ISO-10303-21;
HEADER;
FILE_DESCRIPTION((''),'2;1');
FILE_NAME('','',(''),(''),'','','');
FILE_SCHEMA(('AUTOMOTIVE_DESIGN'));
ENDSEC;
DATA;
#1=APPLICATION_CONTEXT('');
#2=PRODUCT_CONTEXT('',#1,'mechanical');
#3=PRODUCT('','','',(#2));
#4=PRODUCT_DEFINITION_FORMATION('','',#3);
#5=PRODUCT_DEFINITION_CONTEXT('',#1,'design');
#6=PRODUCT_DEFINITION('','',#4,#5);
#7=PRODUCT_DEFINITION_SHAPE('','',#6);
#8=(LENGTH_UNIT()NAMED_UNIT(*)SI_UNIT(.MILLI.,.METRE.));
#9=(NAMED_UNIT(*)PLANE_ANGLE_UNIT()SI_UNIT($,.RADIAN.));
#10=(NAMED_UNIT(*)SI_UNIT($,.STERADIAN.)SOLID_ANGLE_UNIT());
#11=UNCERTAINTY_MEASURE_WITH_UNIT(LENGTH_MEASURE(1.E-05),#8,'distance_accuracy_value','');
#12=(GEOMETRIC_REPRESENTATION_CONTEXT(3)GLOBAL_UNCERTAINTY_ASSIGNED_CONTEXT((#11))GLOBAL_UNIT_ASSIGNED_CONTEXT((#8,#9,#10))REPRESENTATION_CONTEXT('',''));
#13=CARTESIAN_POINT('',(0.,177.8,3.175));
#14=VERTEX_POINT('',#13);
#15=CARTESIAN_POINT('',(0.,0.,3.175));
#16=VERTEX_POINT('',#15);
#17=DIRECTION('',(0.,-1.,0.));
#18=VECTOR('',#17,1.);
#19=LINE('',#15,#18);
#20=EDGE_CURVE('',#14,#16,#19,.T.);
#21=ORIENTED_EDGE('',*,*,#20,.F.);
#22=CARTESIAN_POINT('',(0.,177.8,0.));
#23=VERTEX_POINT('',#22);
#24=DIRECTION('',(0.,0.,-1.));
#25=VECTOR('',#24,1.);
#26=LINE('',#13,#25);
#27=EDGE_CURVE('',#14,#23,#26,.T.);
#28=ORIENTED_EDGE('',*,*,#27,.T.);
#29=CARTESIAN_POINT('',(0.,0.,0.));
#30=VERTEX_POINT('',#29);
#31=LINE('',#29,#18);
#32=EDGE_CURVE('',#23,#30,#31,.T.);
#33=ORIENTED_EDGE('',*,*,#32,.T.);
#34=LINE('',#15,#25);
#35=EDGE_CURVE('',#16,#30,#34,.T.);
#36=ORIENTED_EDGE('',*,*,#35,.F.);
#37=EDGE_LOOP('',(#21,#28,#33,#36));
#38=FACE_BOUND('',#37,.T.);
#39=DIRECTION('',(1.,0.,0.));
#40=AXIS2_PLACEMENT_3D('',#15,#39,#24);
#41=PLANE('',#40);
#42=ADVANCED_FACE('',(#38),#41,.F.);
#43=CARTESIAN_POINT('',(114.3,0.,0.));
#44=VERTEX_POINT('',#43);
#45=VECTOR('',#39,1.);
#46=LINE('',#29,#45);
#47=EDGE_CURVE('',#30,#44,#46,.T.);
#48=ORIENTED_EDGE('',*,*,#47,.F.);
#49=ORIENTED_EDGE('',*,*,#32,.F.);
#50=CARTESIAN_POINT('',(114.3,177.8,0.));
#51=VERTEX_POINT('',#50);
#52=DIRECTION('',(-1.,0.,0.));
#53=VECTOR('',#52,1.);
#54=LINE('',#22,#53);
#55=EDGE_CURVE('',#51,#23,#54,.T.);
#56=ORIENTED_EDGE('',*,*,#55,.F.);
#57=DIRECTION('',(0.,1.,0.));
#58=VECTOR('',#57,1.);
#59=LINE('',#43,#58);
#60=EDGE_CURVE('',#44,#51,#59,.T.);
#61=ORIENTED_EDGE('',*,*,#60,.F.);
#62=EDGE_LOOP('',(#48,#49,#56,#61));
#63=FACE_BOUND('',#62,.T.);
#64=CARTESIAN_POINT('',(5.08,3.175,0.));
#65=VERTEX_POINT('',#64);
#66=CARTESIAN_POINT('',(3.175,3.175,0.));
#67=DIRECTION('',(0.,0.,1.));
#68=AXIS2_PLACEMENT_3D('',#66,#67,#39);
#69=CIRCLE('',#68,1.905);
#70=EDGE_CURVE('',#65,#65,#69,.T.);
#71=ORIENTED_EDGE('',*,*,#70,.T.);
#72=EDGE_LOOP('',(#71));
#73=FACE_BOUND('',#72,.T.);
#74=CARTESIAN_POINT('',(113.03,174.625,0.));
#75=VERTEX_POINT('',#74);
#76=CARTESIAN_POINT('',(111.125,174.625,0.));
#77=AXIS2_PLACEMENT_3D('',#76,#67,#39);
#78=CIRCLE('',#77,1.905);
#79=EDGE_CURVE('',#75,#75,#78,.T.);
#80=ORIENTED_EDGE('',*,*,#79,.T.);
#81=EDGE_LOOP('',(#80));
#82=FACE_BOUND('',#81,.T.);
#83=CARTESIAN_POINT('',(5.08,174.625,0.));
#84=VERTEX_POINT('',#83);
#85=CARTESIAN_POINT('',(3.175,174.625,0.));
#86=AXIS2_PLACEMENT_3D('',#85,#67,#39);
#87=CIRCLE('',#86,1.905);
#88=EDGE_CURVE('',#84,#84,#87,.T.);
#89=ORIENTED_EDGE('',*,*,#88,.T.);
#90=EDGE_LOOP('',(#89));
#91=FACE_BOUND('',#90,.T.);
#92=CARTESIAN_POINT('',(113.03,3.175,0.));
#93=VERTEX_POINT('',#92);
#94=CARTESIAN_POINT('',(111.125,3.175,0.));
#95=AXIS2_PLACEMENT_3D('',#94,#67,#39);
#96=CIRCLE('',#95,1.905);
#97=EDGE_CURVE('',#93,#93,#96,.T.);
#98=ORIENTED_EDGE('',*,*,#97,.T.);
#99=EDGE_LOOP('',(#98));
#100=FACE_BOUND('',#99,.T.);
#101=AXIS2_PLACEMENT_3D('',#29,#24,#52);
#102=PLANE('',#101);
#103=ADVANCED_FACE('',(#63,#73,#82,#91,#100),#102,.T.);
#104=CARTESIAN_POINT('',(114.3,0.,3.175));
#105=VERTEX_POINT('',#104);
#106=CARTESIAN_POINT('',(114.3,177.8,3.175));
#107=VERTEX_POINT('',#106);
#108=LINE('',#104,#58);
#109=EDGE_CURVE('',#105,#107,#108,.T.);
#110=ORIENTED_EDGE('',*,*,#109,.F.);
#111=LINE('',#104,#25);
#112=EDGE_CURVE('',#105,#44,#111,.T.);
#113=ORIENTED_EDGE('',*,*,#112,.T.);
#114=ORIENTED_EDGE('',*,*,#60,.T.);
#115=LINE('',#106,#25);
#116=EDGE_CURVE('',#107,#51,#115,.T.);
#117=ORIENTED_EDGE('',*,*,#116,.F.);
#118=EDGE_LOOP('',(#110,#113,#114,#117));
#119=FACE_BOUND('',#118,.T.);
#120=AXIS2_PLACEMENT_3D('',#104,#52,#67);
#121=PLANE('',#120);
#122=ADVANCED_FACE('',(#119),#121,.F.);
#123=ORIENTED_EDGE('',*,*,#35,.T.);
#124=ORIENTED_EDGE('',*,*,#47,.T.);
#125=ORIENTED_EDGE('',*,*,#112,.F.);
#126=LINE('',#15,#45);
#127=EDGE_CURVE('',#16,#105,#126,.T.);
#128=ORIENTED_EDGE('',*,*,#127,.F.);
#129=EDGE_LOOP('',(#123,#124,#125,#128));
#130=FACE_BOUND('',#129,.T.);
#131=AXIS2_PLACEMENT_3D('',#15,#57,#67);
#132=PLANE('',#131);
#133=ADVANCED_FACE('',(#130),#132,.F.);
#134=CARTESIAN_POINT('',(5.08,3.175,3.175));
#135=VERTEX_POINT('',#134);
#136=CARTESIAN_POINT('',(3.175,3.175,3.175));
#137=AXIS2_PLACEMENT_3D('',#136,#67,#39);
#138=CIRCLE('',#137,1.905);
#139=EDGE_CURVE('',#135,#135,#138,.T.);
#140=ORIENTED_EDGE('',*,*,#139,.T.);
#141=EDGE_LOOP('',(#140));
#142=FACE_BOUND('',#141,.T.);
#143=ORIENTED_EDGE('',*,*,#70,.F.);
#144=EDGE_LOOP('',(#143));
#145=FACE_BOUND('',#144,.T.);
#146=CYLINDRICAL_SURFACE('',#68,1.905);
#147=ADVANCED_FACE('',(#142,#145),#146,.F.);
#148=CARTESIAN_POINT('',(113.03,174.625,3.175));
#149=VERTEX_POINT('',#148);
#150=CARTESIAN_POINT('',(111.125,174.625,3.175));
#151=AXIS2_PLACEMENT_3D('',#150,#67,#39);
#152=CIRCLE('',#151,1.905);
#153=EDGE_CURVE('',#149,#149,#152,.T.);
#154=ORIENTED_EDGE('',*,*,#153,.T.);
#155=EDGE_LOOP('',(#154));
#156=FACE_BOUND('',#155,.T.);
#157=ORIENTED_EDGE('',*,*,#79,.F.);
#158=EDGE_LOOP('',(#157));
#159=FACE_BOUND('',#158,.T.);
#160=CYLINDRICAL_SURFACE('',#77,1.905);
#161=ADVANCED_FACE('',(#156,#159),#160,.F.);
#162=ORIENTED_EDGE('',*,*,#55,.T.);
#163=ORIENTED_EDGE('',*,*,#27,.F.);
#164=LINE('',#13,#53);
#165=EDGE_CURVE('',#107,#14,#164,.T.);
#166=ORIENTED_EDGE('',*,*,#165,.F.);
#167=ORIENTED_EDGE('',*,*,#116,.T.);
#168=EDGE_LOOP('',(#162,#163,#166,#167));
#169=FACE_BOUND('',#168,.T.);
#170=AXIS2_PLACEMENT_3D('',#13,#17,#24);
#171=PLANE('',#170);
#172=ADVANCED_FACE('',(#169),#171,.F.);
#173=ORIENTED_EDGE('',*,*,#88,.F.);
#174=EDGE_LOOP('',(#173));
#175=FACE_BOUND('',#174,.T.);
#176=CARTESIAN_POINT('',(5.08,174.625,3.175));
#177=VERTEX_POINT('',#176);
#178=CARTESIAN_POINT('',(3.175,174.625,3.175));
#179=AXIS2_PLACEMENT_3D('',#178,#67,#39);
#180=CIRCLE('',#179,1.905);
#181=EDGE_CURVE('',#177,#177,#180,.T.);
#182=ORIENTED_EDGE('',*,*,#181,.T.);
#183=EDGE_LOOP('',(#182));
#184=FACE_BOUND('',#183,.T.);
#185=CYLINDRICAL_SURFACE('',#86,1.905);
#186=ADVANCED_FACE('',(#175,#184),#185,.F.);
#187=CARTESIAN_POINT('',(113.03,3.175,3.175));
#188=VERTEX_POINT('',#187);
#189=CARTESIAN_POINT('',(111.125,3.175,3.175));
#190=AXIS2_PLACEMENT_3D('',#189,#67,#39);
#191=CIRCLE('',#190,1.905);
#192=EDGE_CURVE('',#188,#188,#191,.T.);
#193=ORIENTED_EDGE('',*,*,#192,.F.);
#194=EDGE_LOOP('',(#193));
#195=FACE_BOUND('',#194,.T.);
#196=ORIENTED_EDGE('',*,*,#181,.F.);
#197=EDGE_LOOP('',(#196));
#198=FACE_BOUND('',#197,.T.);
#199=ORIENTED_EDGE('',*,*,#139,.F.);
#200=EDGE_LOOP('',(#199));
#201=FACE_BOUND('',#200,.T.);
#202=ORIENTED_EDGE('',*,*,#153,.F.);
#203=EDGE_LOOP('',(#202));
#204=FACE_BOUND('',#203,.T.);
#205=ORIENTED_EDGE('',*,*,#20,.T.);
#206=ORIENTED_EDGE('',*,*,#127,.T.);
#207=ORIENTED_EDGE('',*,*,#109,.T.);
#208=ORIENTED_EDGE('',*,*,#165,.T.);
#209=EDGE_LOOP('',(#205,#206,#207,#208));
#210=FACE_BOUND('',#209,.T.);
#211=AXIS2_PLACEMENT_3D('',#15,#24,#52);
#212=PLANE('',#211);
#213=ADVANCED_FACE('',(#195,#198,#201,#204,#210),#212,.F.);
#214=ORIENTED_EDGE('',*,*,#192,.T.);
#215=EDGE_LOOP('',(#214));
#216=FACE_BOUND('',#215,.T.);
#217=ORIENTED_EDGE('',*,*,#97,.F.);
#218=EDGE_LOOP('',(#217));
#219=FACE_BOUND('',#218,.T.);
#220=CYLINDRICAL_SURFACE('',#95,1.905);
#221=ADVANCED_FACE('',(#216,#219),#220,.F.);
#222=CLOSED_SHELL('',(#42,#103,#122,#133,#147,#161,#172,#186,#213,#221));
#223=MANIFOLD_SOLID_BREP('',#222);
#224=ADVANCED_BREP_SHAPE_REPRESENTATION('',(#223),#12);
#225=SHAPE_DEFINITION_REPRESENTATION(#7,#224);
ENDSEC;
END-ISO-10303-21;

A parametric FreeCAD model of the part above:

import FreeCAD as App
import Part
import Sketcher
from FreeCAD import Vector
Q = App.Units.Quantity


def add_polygon(sketch, points):
    """Adds a closed chain of lines whose ends are joined by coincident constraints."""
    first, n = sketch.GeometryCount, len(points)
    for a, b in zip(points, points[1:] + points[:1]):
        sketch.addGeometry(Part.LineSegment(App.Vector(*a, 0), App.Vector(*b, 0)), False)
    for i in range(n):
        sketch.addConstraint(Sketcher.Constraint("Coincident", first + i, 2, first + (i + 1) % n, 1))

doc = App.newDocument("Part")
body = doc.addObject("PartDesign::Body", "Body")

# Sketch on XY plane
sketch1 = body.newObject("Sketcher::SketchObject", "Sketch")
sketch1.AttachmentSupport = (doc.getObject("XY_Plane"), [""])
sketch1.MapMode = "FlatFace"
add_polygon(sketch1, [(0, 177.8), (0, 0), (114.3, 0), (114.3, 177.8)])  # lines 0-3
sketch1.addConstraint([
    Sketcher.Constraint("Vertical", 0),
    Sketcher.Constraint("Horizontal", 1),
    Sketcher.Constraint("Vertical", 2),
    Sketcher.Constraint("Horizontal", 3),
    Sketcher.Constraint("Coincident", 0, 2, -1, 1),
    Sketcher.Constraint("DistanceY", 0, 2, 0, 1, Q("7 in")),
    Sketcher.Constraint("DistanceX", 1, 1, 1, 2, Q("4.5 in")),
])
pad1 = body.newObject("PartDesign::Pad", "Pad")
pad1.Profile = sketch1
pad1.Length = Q("0.125 in")

# Sketch on XY plane
sketch2 = body.newObject("Sketcher::SketchObject", "Sketch001")
sketch2.AttachmentSupport = (doc.getObject("XY_Plane"), [""])
sketch2.MapMode = "FlatFace"
sketch2.AttachmentOffset = App.Placement(Vector(0, 0, 0.125 * 25.4), App.Rotation())
sketch2.addGeometry([
    Part.Circle(Vector(3.175, 174.625, 0), Vector(0, 0, 1), 1.905),
    Part.Circle(Vector(111.125, 174.625, 0), Vector(0, 0, 1), 1.905),
    Part.Circle(Vector(111.125, 3.175, 0), Vector(0, 0, 1), 1.905),
    Part.Circle(Vector(3.175, 3.175, 0), Vector(0, 0, 1), 1.905),
], False)
sketch2.addConstraint([
    Sketcher.Constraint("Equal", 0, 1),
    Sketcher.Constraint("Equal", 1, 2),
    Sketcher.Constraint("Equal", 2, 3),
    Sketcher.Constraint("Horizontal", 0, 3, 1, 3),
    Sketcher.Constraint("Horizontal", 2, 3, 3, 3),
    Sketcher.Constraint("Vertical", 1, 3, 2, 3),
    Sketcher.Constraint("Vertical", 0, 3, 3, 3),
    Sketcher.Constraint("Diameter", 0, Q("0.15 in")),
    Sketcher.Constraint("DistanceX", 0, 3, 1, 3, Q("4.25 in")),
    Sketcher.Constraint("DistanceY", 2, 3, 1, 3, Q("6.75 in")),
    Sketcher.Constraint("DistanceX", -1, 1, 0, 3, Q("0.125 in")),
    Sketcher.Constraint("DistanceY", -1, 1, 0, 3, Q("6.875 in")),
])
pocket1 = body.newObject("PartDesign::Pocket", "Pocket")
pocket1.Profile = sketch2
pocket1.Type = "ThroughAll"

doc.recompute()
